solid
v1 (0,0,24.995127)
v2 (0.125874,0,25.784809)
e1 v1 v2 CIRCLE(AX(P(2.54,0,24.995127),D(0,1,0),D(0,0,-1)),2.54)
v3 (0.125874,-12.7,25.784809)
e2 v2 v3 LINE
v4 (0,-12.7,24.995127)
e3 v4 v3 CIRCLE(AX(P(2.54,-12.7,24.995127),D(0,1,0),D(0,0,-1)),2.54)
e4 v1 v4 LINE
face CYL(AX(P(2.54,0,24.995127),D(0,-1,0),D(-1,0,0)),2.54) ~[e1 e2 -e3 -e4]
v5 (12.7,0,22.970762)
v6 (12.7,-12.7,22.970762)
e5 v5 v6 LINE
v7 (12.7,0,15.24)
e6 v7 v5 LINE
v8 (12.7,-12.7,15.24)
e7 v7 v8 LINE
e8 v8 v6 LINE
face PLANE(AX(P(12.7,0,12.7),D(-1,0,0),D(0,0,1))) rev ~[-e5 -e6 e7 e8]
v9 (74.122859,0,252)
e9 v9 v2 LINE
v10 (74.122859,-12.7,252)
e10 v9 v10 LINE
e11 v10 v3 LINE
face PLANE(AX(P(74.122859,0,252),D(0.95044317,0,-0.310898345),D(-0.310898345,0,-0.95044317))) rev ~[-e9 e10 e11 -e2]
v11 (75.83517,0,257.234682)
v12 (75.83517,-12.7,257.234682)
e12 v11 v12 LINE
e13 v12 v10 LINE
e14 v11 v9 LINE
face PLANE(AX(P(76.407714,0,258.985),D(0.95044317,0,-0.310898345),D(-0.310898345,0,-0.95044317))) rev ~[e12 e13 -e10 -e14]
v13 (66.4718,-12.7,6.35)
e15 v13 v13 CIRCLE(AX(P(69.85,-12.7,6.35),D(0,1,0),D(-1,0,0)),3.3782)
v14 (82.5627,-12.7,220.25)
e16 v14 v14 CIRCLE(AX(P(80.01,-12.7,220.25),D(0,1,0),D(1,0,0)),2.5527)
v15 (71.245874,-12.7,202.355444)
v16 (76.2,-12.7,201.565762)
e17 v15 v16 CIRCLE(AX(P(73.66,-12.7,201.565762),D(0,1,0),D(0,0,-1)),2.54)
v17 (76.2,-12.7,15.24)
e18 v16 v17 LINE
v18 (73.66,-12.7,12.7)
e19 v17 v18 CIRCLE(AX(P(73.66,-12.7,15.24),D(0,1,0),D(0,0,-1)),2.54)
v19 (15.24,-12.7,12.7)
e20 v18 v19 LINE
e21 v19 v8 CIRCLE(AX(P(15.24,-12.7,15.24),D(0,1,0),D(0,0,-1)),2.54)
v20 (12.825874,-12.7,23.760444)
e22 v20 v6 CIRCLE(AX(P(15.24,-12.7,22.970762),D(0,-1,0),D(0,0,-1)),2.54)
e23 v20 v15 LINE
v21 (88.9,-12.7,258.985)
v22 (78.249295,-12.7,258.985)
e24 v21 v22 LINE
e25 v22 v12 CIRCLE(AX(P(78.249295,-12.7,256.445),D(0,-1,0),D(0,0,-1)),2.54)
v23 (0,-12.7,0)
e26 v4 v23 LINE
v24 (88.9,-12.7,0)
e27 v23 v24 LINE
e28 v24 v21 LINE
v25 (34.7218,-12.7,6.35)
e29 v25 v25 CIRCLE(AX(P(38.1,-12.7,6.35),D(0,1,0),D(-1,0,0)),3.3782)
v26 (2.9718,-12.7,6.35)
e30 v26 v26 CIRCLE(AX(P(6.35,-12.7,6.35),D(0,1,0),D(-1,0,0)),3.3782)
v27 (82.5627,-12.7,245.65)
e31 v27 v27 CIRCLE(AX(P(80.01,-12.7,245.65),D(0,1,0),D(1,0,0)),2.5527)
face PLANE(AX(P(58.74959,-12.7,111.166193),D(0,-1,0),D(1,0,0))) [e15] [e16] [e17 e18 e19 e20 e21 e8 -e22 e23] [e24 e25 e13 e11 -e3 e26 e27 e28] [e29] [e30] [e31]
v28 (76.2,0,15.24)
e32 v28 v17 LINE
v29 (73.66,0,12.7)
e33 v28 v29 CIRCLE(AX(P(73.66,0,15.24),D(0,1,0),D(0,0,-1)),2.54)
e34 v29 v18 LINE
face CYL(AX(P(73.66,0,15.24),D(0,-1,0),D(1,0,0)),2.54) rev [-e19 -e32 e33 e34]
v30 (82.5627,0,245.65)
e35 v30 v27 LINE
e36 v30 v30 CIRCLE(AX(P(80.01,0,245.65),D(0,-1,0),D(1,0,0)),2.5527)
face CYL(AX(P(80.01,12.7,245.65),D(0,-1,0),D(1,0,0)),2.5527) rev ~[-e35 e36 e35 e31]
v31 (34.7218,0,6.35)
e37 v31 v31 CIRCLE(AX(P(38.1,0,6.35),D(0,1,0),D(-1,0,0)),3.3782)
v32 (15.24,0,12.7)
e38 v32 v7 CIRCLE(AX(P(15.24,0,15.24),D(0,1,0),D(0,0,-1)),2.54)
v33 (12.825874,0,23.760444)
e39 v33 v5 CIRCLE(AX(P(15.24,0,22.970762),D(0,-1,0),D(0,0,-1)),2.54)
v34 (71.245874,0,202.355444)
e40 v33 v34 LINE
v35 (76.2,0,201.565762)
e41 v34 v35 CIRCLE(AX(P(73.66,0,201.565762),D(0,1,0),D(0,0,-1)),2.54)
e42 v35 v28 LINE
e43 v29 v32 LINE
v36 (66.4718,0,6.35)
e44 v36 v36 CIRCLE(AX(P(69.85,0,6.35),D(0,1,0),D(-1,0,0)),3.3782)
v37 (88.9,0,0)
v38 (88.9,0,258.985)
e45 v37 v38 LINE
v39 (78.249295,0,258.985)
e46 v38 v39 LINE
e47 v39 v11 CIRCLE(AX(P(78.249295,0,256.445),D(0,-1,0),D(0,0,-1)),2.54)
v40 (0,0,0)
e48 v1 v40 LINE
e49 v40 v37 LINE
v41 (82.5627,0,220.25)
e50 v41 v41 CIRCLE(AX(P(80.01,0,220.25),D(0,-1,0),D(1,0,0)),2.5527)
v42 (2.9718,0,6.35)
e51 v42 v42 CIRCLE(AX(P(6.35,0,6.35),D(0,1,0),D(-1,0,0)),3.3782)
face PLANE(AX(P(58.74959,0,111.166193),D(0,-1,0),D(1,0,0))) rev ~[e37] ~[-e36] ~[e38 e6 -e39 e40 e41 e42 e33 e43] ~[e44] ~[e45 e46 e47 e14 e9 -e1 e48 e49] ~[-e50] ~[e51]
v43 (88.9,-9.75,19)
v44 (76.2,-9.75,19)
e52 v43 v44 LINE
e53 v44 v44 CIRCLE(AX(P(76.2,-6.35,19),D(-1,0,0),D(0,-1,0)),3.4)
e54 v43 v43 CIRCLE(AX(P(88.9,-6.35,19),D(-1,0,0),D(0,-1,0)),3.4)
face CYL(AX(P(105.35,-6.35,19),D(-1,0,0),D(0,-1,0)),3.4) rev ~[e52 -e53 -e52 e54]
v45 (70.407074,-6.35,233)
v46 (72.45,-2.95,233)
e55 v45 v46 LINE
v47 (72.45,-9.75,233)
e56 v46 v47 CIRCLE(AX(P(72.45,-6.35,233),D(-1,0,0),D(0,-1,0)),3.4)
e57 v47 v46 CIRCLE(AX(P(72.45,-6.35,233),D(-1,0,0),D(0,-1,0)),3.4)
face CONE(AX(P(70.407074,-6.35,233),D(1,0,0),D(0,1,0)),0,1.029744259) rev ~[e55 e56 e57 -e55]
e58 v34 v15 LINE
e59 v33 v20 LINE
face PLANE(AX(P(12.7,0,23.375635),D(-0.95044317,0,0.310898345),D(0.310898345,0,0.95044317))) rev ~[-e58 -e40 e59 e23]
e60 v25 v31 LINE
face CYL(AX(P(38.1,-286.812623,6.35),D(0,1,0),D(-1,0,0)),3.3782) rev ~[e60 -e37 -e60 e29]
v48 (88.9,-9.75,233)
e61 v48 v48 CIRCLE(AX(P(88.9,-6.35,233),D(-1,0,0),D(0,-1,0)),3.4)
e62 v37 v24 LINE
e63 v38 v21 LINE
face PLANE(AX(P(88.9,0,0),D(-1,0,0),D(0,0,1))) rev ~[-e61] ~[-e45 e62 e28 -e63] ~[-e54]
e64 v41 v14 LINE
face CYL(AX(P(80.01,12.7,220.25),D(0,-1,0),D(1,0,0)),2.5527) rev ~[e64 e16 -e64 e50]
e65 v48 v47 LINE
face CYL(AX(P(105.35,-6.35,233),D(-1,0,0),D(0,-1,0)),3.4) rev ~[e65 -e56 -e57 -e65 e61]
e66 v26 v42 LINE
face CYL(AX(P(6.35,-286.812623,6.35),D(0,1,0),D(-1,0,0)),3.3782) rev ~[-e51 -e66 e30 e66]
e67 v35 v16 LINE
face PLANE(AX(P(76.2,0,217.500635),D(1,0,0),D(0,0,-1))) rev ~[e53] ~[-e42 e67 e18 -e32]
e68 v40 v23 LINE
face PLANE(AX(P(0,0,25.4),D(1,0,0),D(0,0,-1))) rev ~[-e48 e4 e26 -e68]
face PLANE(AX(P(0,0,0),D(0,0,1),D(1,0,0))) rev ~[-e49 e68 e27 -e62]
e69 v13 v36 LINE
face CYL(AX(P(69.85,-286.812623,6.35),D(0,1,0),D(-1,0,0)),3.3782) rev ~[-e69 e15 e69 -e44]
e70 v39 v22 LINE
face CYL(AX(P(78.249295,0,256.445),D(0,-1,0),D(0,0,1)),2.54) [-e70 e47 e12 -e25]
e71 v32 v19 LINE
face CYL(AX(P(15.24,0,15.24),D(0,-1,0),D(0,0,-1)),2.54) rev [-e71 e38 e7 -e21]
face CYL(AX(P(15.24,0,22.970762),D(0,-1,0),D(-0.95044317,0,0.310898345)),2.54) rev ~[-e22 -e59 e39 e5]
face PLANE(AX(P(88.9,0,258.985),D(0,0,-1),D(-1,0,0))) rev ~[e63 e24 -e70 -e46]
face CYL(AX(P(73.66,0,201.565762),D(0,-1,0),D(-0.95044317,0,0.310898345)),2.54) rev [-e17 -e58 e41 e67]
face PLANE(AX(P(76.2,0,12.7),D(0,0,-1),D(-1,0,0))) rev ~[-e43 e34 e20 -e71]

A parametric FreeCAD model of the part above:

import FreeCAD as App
import Part
import Sketcher

V = App.Vector
Q = App.Units.Quantity


def edges_at(feature, points):
    """Names of the edges that pass closest to the given points."""
    edges = feature.Shape.Edges
    near = lambda p: min(range(len(edges)), key=lambda i: edges[i].distToShape(Part.Vertex(*p))[0])
    return sorted({f"Edge{near(p) + 1}" for p in points})


def add_polygon(sketch, points):
    """Adds a closed chain of lines whose ends are joined by coincident constraints."""
    first, n = sketch.GeometryCount, len(points)
    for a, b in zip(points, points[1:] + points[:1]):
        sketch.addGeometry(Part.LineSegment(App.Vector(*a, 0), App.Vector(*b, 0)), False)
    for i in range(n):
        sketch.addConstraint(Sketcher.Constraint("Coincident", first + i, 2, first + (i + 1) % n, 1))

doc = App.newDocument("Part")
body = doc.addObject("PartDesign::Body", "Body")

sketch1 = body.newObject("Sketcher::SketchObject", "Sketch")
sketch1.AttachmentSupport = (doc.getObject("XZ_Plane"), [""])
sketch1.MapMode = "FlatFace"
add_polygon(sketch1, [(0, 25), (0, 0), (89, 0), (89, 259), (76, 259), (74, 252)])
add_polygon(sketch1, [(13, 23), (76, 218), (76, 13), (13, 13)])
sketch1.addConstraint(Sketcher.Constraint("Vertical", 0))
sketch1.addConstraint(Sketcher.Constraint("Horizontal", 1))
sketch1.addConstraint(Sketcher.Constraint("Vertical", 2))
sketch1.addConstraint(Sketcher.Constraint("Horizontal", 3))
sketch1.addConstraint(Sketcher.Constraint("Vertical", 7))
sketch1.addConstraint(Sketcher.Constraint("Horizontal", 8))
sketch1.addConstraint(Sketcher.Constraint("Vertical", 9))
sketch1.addConstraint(Sketcher.Constraint("Coincident", 0, 2, -1, 1))
sketch1.addConstraint(Sketcher.Constraint("Parallel", 4, 5))
sketch1.addConstraint(Sketcher.Constraint("Parallel", 5, 6))
sketch1.addConstraint(Sketcher.Constraint("DistanceY", 0, 2, 0, 1, Q("1 in")))
sketch1.addConstraint(Sketcher.Constraint("DistanceX", 1, 1, 1, 2, Q("3.5 in")))
sketch1.addConstraint(Sketcher.Constraint("DistanceX", 8, 2, 8, 1, Q("2.5 in")))
sketch1.addConstraint(Sketcher.Constraint("DistanceX", -1, 1, 6, 2, Q("3 in")))
sketch1.addConstraint(Sketcher.Constraint("DistanceY", -1, 1, 7, 2, Q("0.5 in")))
sketch1.addConstraint(Sketcher.Constraint("DistanceY", 4, 2, 3, 2, Q("0.275 in")))
sketch1.addConstraint(Sketcher.Constraint("DistanceY", 2, 1, 2, 2, Q("258.985 mm")))
sketch1.addConstraint(Sketcher.Constraint("DistanceX", 3, 2, 3, 1, Q("12.492286 mm")))
sketch1.addConstraint(Sketcher.Constraint("DistanceY", 7, 2, 7, 1, Q("204.800635 mm")))
pad1 = body.newObject("PartDesign::Pad", "Pad")
pad1.Profile = sketch1
pad1.Length = Q("0.5 in")
doc.recompute()

fillet = body.newObject("PartDesign::Fillet", "Fillet")
fillet.Base = (pad1, edges_at(pad1, [
    (0, -6.35, 25.4),
    (76.2, -6.35, 12.7),
    (12.7, -6.35, 12.7),
    (12.7, -6.35, 23.376),
    (76.2, -6.35, 217.501),
    (76.408, -6.35, 258.985),
]))
fillet.Radius = Q("0.1 in")

sketch2 = body.newObject("Sketcher::SketchObject", "Sketch001")
sketch2.AttachmentSupport = (doc.getObject("YZ_Plane"), [""])
sketch2.MapMode = "FlatFace"
sketch2.AttachmentOffset = App.Placement(V(0, 0, 3.5 * 25.4), App.Rotation())
sketch2.addGeometry(Part.Circle(V(-6.3, 233, 0), V(0, 0, 1), 3.4), False)
sketch2.addGeometry(Part.Circle(V(-6.3, 19, 0), V(0, 0, 1), 3.4), False)
sketch2.addConstraint(Sketcher.Constraint("Equal", 0, 1))
sketch2.addConstraint(Sketcher.Constraint("Vertical", 0, 3, 1, 3))
sketch2.addConstraint(Sketcher.Constraint("Diameter", 0, Q("6.8 mm")))
sketch2.addConstraint(Sketcher.Constraint("DistanceX", 0, 3, -1, 1, Q("0.25 in")))
sketch2.addConstraint(Sketcher.Constraint("DistanceY", -1, 1, 0, 3, Q("233 mm")))
sketch2.addConstraint(Sketcher.Constraint("DistanceY", -1, 1, 1, 3, Q("19 mm")))
doc.recompute()
hole = body.newObject("PartDesign::Hole", "Hole")
hole.Profile = sketch2
hole.ThreadType = "None"
hole.Diameter = 6.8
hole.DepthType = "Dimension"
hole.Depth = 16.45
hole.DrillPoint = "Angled"
hole.DrillPointAngle = 118

sketch3 = body.newObject("Sketcher::SketchObject", "Sketch002")
sketch3.AttachmentSupport = (doc.getObject("XZ_Plane"), [""])
sketch3.MapMode = "FlatFace"
sketch3.addGeometry(Part.Circle(V(80, 245.7, 0), V(0, 0, 1), 2.6), False)
sketch3.addGeometry(Part.Circle(V(80, 220.2, 0), V(0, 0, 1), 2.6), False)
sketch3.addConstraint(Sketcher.Constraint("Equal", 0, 1))
sketch3.addConstraint(Sketcher.Constraint("Vertical", 0, 3, 1, 3))
sketch3.addConstraint(Sketcher.Constraint("Diameter", 0, Q("0.201 in")))
sketch3.addConstraint(Sketcher.Constraint("DistanceY", 1, 3, 0, 3, Q("1 in")))
sketch3.addConstraint(Sketcher.Constraint("DistanceX", -1, 1, 0, 3, Q("3.15 in")))
sketch3.addConstraint(Sketcher.Constraint("DistanceY", -1, 1, 0, 3, Q("245.65 mm")))
doc.recompute()
hole2 = body.newObject("PartDesign::Hole", "Hole001")
hole2.Profile = sketch3
hole2.ThreadType = "None"
hole2.Diameter = Q("0.201 in")
hole2.DepthType = "Dimension"
hole2.Depth = Q("0.5 in")
hole2.DrillPoint = "Angled"
hole2.DrillPointAngle = 118
hole2.Reversed = True

sketch4 = body.newObject("Sketcher::SketchObject", "Sketch003")
sketch4.AttachmentSupport = (doc.getObject("XZ_Plane"), [""])
sketch4.MapMode = "FlatFace"
sketch4.AttachmentOffset = App.Placement(V(0, 0, 0.5 * 25.4), App.Rotation())
sketch4.addGeometry(Part.Circle(V(6.3, 6.3, 0), V(0, 0, 1), 3.4), False)
sketch4.addGeometry(Part.Circle(V(38.1, 6.3, 0), V(0, 0, 1), 3.4), False)
sketch4.addGeometry(Part.Circle(V(69.8, 6.3, 0), V(0, 0, 1), 3.4), False)
sketch4.addConstraint(Sketcher.Constraint("Equal", 0, 1))
sketch4.addConstraint(Sketcher.Constraint("Equal", 1, 2))
sketch4.addConstraint(Sketcher.Constraint("Horizontal", 0, 3, 1, 3))
sketch4.addConstraint(Sketcher.Constraint("Horizontal", 1, 3, 2, 3))
sketch4.addConstraint(Sketcher.Constraint("Diameter", 0, Q("0.266 in")))
sketch4.addConstraint(Sketcher.Constraint("DistanceX", -1, 1, 1, 3, Q("1.5 in")))
sketch4.addConstraint(Sketcher.Constraint("DistanceX", 0, 3, 2, 3, Q("2.5 in")))
sketch4.addConstraint(Sketcher.Constraint("DistanceX", -1, 1, 0, 3, Q("0.25 in")))
sketch4.addConstraint(Sketcher.Constraint("DistanceY", -1, 1, 0, 3, Q("0.25 in")))
doc.recompute()
hole3 = body.newObject("PartDesign::Hole", "Hole002")
hole3.Profile = sketch4
hole3.ThreadType = "None"
hole3.Diameter = Q("0.266 in")
hole3.DepthType = "ThroughAll"

doc.recompute()
